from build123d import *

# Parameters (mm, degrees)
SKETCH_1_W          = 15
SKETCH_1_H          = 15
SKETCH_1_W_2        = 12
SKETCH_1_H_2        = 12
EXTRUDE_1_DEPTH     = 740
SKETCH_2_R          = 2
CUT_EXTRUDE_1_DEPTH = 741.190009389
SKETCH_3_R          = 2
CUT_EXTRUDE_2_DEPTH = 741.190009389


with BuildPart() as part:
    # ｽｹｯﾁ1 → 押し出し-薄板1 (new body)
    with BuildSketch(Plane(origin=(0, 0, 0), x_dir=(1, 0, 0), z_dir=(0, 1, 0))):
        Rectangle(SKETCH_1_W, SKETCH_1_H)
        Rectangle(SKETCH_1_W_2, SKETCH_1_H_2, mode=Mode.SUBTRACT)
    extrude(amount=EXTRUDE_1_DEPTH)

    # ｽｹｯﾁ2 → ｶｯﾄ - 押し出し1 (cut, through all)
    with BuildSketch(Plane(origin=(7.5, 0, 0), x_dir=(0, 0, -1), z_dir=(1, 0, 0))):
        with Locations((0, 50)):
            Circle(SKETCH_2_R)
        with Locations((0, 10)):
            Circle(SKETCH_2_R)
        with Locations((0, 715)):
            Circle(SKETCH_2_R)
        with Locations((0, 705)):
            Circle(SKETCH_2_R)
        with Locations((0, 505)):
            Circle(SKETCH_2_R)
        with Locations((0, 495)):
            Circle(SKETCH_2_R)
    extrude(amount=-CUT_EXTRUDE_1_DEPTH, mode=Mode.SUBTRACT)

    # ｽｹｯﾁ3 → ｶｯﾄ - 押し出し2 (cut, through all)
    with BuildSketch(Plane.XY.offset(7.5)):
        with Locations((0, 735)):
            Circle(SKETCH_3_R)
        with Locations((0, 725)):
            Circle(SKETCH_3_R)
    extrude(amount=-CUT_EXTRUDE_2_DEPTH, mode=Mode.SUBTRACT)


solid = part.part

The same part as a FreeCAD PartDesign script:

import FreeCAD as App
import Part
import Sketcher

V = App.Vector


def add_polygon(sketch, points):
    """Adds a closed chain of lines whose ends are joined by coincident constraints."""
    first, n = sketch.GeometryCount, len(points)
    for a, b in zip(points, points[1:] + points[:1]):
        sketch.addGeometry(Part.LineSegment(App.Vector(*a, 0), App.Vector(*b, 0)), False)
    for i in range(n):
        sketch.addConstraint(Sketcher.Constraint("Coincident", first + i, 2, first + (i + 1) % n, 1))

doc = App.newDocument("Part")
body = doc.addObject("PartDesign::Body", "Body")

sketch1 = body.newObject("Sketcher::SketchObject", "Sketch")
sketch1.AttachmentSupport = (doc.getObject("XZ_Plane"), [""])
sketch1.MapMode = "FlatFace"
add_polygon(sketch1, [(-8, -8), (-8, 8), (8, 8), (8, -8)])
add_polygon(sketch1, [(6, 6), (-6, 6), (-6, -6), (6, -6)])
sketch1.addConstraint(Sketcher.Constraint("Vertical", 0))
sketch1.addConstraint(Sketcher.Constraint("Horizontal", 1))
sketch1.addConstraint(Sketcher.Constraint("Vertical", 2))
sketch1.addConstraint(Sketcher.Constraint("Horizontal", 3))
sketch1.addConstraint(Sketcher.Constraint("Horizontal", 4))
sketch1.addConstraint(Sketcher.Constraint("Vertical", 5))
sketch1.addConstraint(Sketcher.Constraint("Horizontal", 6))
sketch1.addConstraint(Sketcher.Constraint("Vertical", 7))
sketch1.addConstraint(Sketcher.Constraint("Symmetric", 0, 2, 2, 2, -1, 1))
sketch1.addConstraint(Sketcher.Constraint("Symmetric", 4, 2, 6, 2, -1, 1))
sketch1.addConstraint(Sketcher.Constraint("Equal", 3, 0))
sketch1.addConstraint(Sketcher.Constraint("Equal", 6, 5))
sketch1.addConstraint(Sketcher.Constraint("DistanceX", 1, 1, 1, 2, 15.0))
sketch1.addConstraint(Sketcher.Constraint("DistanceX", 4, 2, 4, 1, 12.0))
pad1 = body.newObject("PartDesign::Pad", "Pad")
pad1.Profile = sketch1
pad1.Length = 740
pad1.Reversed = True

sketch2 = body.newObject("Sketcher::SketchObject", "Sketch001")
sketch2.AttachmentSupport = (doc.getObject("YZ_Plane"), [""])
sketch2.MapMode = "FlatFace"
sketch2.AttachmentOffset = App.Placement(V(0, 0, 7.5), App.Rotation())
sketch2.addGeometry(Part.Circle(V(50, 0, 0), V(0, 0, 1), 2), False)
sketch2.addGeometry(Part.Circle(V(10, 0, 0), V(0, 0, 1), 2), False)
sketch2.addGeometry(Part.Circle(V(715, 0, 0), V(0, 0, 1), 2), False)
sketch2.addGeometry(Part.Circle(V(705, 0, 0), V(0, 0, 1), 2), False)
sketch2.addGeometry(Part.Circle(V(505, 0, 0), V(0, 0, 1), 2), False)
sketch2.addGeometry(Part.Circle(V(495, 0, 0), V(0, 0, 1), 2), False)
sketch2.addConstraint(Sketcher.Constraint("Equal", 0, 1))
sketch2.addConstraint(Sketcher.Constraint("Equal", 1, 2))
sketch2.addConstraint(Sketcher.Constraint("Equal", 2, 3))
sketch2.addConstraint(Sketcher.Constraint("Equal", 3, 4))
sketch2.addConstraint(Sketcher.Constraint("Equal", 4, 5))
sketch2.addConstraint(Sketcher.Constraint("PointOnObject", 0, 3, -1))
sketch2.addConstraint(Sketcher.Constraint("PointOnObject", 1, 3, -1))
sketch2.addConstraint(Sketcher.Constraint("PointOnObject", 2, 3, -1))
sketch2.addConstraint(Sketcher.Constraint("PointOnObject", 3, 3, -1))
sketch2.addConstraint(Sketcher.Constraint("PointOnObject", 4, 3, -1))
sketch2.addConstraint(Sketcher.Constraint("PointOnObject", 5, 3, -1))
sketch2.addConstraint(Sketcher.Constraint("Diameter", 0, 4.0))
sketch2.addConstraint(Sketcher.Constraint("DistanceX", -1, 1, 0, 3, 50.0))
sketch2.addConstraint(Sketcher.Constraint("DistanceX", -1, 1, 1, 3, 10.0))
sketch2.addConstraint(Sketcher.Constraint("DistanceX", -1, 1, 2, 3, 715.0))
sketch2.addConstraint(Sketcher.Constraint("DistanceX", -1, 1, 3, 3, 705.0))
sketch2.addConstraint(Sketcher.Constraint("DistanceX", -1, 1, 4, 3, 505.0))
sketch2.addConstraint(Sketcher.Constraint("DistanceX", -1, 1, 5, 3, 495.0))
pocket1 = body.newObject("PartDesign::Pocket", "Pocket")
pocket1.Profile = sketch2
pocket1.Type = "ThroughAll"

sketch3 = body.newObject("Sketcher::SketchObject", "Sketch002")
sketch3.AttachmentSupport = (doc.getObject("XY_Plane"), [""])
sketch3.MapMode = "FlatFace"
sketch3.AttachmentOffset = App.Placement(V(0, 0, 7.5), App.Rotation())
sketch3.addGeometry(Part.Circle(V(0, 735, 0), V(0, 0, 1), 2), False)
sketch3.addGeometry(Part.Circle(V(0, 725, 0), V(0, 0, 1), 2), False)
sketch3.addConstraint(Sketcher.Constraint("Equal", 0, 1))
sketch3.addConstraint(Sketcher.Constraint("PointOnObject", 0, 3, -2))
sketch3.addConstraint(Sketcher.Constraint("PointOnObject", 1, 3, -2))
sketch3.addConstraint(Sketcher.Constraint("Diameter", 0, 4.0))
sketch3.addConstraint(Sketcher.Constraint("DistanceY", -1, 1, 0, 3, 735.0))
sketch3.addConstraint(Sketcher.Constraint("DistanceY", -1, 1, 1, 3, 725.0))
pocket2 = body.newObject("PartDesign::Pocket", "Pocket001")
pocket2.Profile = sketch3
pocket2.Type = "ThroughAll"

doc.recompute()
